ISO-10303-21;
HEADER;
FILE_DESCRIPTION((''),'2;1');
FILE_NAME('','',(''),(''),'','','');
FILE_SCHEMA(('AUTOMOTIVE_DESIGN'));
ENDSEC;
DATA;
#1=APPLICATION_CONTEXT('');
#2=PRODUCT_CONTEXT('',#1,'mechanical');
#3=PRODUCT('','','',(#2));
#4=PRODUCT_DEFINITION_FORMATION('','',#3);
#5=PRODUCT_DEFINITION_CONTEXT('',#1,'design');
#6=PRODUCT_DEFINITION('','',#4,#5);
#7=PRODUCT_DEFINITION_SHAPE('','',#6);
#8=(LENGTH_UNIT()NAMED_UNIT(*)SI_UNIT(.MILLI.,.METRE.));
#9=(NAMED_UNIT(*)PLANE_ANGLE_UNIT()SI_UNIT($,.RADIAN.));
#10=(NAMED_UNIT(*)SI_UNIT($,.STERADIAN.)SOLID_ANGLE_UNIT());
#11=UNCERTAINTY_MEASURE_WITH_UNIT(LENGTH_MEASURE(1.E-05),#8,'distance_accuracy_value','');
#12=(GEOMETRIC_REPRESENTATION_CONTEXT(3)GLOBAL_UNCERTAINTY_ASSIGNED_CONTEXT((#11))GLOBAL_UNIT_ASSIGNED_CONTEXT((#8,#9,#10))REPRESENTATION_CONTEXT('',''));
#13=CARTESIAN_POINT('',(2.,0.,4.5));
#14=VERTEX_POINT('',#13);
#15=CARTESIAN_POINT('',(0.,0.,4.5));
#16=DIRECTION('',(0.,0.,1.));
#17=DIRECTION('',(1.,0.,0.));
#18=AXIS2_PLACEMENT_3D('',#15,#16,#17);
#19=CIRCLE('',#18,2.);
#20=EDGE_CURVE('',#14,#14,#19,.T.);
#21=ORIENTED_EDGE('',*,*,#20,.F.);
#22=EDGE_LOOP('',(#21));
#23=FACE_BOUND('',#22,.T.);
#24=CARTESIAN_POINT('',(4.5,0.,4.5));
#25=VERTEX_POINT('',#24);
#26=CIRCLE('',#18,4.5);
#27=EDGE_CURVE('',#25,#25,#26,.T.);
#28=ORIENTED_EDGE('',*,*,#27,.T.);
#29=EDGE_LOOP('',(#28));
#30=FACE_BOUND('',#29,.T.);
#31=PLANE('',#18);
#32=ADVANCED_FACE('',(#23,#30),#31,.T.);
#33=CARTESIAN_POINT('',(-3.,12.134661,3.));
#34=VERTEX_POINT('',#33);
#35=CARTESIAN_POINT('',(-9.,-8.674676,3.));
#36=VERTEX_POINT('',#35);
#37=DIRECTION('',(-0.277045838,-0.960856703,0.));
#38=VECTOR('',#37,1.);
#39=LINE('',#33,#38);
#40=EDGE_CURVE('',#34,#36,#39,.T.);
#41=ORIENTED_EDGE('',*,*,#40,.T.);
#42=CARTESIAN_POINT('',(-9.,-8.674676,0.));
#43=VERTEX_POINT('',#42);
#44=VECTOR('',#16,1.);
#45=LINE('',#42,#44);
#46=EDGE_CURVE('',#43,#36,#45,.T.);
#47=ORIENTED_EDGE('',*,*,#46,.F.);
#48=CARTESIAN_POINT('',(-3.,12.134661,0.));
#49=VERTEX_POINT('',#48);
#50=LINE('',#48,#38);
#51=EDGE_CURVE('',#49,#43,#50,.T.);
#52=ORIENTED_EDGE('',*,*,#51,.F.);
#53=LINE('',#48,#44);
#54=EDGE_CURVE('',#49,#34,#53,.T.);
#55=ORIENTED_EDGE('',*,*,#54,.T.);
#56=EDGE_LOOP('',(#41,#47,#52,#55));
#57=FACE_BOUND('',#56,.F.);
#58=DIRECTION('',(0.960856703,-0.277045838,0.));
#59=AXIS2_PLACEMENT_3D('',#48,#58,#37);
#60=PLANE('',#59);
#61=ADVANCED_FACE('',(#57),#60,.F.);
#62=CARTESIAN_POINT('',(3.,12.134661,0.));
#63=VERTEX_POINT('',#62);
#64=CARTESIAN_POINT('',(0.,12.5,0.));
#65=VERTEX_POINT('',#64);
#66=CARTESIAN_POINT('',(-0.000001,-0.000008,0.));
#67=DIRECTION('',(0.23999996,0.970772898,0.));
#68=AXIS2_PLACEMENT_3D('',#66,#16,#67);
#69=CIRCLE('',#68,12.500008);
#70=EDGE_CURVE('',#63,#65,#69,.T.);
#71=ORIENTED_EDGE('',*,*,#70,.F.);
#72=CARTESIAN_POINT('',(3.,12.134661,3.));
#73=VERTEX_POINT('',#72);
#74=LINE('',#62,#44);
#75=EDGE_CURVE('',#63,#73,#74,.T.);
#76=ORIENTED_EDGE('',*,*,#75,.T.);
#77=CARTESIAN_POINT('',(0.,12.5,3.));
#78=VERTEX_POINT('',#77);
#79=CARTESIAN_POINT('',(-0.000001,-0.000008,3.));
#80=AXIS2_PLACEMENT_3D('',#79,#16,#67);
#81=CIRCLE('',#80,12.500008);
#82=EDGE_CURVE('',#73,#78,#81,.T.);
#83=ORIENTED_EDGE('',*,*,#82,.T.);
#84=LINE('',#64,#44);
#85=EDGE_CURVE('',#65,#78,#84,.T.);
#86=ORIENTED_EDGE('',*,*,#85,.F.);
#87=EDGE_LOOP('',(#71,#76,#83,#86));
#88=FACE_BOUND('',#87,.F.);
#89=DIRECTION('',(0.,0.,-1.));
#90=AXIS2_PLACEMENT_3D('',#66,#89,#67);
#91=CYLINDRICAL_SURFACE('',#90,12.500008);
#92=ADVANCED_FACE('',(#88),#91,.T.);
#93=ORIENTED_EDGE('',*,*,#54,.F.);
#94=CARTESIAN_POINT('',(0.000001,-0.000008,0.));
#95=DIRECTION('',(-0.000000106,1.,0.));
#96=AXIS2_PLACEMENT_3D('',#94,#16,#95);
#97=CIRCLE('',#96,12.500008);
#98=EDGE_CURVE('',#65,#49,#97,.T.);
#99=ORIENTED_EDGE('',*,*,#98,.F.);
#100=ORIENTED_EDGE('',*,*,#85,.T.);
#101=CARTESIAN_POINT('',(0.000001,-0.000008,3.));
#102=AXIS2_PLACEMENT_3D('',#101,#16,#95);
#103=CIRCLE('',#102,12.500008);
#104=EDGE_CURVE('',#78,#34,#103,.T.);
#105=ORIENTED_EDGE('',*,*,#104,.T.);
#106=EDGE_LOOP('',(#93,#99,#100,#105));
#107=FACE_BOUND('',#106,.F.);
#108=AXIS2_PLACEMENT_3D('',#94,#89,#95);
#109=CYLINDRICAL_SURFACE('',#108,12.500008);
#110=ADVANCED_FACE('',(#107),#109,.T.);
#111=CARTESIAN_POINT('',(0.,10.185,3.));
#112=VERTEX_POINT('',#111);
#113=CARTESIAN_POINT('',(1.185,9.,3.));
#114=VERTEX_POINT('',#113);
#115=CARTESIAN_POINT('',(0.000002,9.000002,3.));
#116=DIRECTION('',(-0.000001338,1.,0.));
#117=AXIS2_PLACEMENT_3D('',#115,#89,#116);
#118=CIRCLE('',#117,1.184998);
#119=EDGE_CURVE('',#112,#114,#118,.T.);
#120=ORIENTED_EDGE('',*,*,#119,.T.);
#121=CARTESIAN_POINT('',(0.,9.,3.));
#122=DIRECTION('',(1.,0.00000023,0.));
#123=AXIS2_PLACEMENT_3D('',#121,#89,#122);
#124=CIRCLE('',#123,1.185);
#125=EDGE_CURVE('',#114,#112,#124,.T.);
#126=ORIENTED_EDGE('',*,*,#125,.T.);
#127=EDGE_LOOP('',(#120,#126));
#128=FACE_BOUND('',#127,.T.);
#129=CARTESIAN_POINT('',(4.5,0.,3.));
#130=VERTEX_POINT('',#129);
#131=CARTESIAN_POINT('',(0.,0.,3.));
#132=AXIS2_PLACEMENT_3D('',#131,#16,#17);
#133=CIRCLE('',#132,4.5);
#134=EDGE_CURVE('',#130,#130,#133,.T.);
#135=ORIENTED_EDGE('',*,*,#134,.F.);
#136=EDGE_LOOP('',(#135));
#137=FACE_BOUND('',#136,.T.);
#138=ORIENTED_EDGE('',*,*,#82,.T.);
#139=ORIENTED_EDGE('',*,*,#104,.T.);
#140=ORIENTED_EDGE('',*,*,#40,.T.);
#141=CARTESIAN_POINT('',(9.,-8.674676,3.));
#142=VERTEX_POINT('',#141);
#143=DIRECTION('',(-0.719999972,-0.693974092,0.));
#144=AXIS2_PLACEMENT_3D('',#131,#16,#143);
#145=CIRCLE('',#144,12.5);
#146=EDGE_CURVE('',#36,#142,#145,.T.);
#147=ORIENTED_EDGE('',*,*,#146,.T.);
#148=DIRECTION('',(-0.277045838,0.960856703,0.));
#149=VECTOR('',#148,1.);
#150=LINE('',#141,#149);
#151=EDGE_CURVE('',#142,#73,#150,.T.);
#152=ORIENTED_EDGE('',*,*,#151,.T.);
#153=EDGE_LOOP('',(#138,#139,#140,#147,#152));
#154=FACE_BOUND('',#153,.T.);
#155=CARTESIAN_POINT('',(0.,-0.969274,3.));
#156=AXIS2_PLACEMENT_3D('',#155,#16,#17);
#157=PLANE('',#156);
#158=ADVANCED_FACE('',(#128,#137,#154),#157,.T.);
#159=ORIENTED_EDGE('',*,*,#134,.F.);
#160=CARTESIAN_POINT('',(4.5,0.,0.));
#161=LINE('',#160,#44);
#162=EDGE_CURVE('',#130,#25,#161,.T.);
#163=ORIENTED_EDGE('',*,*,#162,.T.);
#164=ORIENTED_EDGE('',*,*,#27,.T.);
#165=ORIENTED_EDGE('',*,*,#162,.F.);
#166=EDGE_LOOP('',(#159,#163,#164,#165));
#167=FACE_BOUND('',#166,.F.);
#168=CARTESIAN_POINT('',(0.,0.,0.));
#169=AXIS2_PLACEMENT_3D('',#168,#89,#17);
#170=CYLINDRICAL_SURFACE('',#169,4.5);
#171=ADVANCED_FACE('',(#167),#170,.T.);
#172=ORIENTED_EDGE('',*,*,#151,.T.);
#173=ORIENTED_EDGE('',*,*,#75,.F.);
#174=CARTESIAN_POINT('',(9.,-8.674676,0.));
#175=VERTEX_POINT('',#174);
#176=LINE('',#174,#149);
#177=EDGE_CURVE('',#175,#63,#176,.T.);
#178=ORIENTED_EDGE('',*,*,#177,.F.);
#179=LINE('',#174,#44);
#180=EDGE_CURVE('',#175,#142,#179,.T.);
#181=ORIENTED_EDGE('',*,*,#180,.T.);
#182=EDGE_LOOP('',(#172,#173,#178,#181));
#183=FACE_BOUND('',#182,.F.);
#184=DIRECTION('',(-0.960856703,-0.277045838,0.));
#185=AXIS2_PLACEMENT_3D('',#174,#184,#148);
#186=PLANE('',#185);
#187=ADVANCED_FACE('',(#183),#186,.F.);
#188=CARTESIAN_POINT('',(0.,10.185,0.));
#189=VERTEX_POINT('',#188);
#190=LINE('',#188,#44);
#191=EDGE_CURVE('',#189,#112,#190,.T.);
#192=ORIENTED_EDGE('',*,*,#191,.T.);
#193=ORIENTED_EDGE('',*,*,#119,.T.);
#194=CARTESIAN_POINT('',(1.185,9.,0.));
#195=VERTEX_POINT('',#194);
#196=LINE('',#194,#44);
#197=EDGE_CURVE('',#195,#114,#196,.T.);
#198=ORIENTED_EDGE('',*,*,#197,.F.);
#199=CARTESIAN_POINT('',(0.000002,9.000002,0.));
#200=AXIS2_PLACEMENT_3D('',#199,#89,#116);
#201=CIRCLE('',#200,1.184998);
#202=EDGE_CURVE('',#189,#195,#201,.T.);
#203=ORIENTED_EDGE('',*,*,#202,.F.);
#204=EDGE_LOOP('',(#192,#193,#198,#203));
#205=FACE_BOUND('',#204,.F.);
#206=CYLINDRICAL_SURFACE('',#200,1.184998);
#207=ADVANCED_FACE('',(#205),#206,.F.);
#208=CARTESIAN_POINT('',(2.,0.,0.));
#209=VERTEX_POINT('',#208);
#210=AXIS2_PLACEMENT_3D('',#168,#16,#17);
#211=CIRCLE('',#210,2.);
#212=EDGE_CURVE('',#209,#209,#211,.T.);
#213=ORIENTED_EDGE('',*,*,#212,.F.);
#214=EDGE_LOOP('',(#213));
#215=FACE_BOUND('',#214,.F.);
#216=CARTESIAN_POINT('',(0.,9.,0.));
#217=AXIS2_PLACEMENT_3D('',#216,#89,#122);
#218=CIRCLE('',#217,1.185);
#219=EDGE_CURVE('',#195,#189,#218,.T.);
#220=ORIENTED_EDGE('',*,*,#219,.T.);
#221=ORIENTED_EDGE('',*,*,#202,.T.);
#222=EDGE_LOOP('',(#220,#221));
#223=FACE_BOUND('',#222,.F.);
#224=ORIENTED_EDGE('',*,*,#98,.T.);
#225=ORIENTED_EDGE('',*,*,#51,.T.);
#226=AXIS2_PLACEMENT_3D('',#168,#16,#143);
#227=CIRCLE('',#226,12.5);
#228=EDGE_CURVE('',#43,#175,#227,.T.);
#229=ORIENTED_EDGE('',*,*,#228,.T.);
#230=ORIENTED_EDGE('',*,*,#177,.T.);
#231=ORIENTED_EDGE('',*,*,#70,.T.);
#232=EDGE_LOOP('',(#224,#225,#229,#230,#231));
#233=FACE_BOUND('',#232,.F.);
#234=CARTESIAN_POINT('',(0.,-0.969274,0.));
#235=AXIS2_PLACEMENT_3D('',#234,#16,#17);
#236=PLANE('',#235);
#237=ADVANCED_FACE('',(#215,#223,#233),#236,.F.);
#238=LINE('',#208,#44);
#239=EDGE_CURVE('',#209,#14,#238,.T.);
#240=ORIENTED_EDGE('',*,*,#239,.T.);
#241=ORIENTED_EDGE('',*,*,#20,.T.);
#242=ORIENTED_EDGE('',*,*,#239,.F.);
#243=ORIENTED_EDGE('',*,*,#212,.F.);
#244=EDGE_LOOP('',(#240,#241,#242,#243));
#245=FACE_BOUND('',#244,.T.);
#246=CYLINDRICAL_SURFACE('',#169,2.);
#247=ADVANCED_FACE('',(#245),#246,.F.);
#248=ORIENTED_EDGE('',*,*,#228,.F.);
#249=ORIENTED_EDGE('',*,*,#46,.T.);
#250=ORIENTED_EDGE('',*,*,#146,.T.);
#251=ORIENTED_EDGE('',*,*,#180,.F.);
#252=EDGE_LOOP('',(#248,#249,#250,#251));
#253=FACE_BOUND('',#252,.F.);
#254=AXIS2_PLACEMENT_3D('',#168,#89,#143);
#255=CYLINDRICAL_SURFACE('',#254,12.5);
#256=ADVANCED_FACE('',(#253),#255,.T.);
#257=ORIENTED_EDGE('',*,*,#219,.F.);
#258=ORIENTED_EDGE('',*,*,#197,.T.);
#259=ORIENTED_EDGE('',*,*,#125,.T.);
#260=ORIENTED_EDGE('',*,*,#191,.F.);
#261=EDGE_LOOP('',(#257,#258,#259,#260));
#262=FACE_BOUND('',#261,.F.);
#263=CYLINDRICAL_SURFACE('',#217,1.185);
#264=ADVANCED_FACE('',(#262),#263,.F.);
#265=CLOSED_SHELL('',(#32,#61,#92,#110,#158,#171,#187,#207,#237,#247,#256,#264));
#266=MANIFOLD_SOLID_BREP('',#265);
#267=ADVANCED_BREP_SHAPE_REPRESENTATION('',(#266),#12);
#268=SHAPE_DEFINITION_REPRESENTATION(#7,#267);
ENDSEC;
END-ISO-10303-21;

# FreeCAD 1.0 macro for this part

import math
import FreeCAD as App
import Part
import Sketcher
from FreeCAD import Vector
Q = App.Units.Quantity

doc = App.newDocument("Part")
params = doc.addObject("Spreadsheet::Sheet", "Params")
for row, (alias, value) in enumerate([
    ("sketch1_diameter", "9 mm"),
    ("sketch1_radius", "12.5 mm"),
    ("pad1_length", "3 mm"),
    ("sketch2_diameter", "9 mm"),
    ("sketch2_diameter2", "4 mm"),
    ("pad2_length", "4.5 mm"),
], start=1):
    params.set(f"A{row}", alias)
    params.set(f"B{row}", "=" + value)
    params.setAlias(f"B{row}", alias)

body = doc.addObject("PartDesign::Body", "Body")

sketch1 = doc.addObject("Sketcher::SketchObject", "Sketch")
body.addObject(sketch1)
sketch1.AttachmentSupport = (doc.XY_Plane, [""])
sketch1.MapMode = "FlatFace"
sketch1.addGeometry(Part.LineSegment(Vector(-3, 12.1, 0), Vector(-9, -8.7, 0)), False)
sketch1.addGeometry(Part.ArcOfCircle(Part.Circle(Vector(0, 0, 0), Vector(0, 0, 1), 12.5), math.radians(-136), math.radians(-44)), False)
sketch1.addGeometry(Part.LineSegment(Vector(9, -8.7, 0), Vector(3, 12.1, 0)), False)
sketch1.addGeometry(Part.ArcOfCircle(Part.Circle(Vector(0, 0, 0), Vector(0, 0, 1), 12.5), math.radians(76.11), math.radians(90)), False)
sketch1.addGeometry(Part.ArcOfCircle(Part.Circle(Vector(0, 0, 0), Vector(0, 0, 1), 12.5), math.radians(90), math.radians(103.89)), False)
sketch1.addGeometry(Part.Circle(Vector(0, 0, 0), Vector(0, 0, 1), 4.5), False)
sketch1.addGeometry(Part.ArcOfCircle(Part.Circle(Vector(0, 9, 0), Vector(0, 0, 1), 1.2), math.radians(0), math.radians(90)), False)
sketch1.addGeometry(Part.ArcOfCircle(Part.Circle(Vector(0, 9, 0), Vector(0, 0, 1), 1.2), math.radians(90), math.radians(360)), False)
sketch1.addConstraint(Sketcher.Constraint("Coincident", 0, 2, 1, 1))
sketch1.addConstraint(Sketcher.Constraint("Coincident", 1, 2, 2, 1))
sketch1.addConstraint(Sketcher.Constraint("Coincident", 2, 2, 3, 1))
sketch1.addConstraint(Sketcher.Constraint("Tangent", 3, 2, 4, 1))
sketch1.addConstraint(Sketcher.Constraint("Coincident", 4, 2, 0, 1))
sketch1.addConstraint(Sketcher.Constraint("Tangent", 6, 1, 7, 2))
sketch1.addConstraint(Sketcher.Constraint("Coincident", 7, 1, 6, 2))
sketch1.addConstraint(Sketcher.Constraint("Coincident", 1, 3, -1, 1))
sketch1.addConstraint(Sketcher.Constraint("Coincident", 3, 3, -1, 1))
sketch1.addConstraint(Sketcher.Constraint("Coincident", 5, 3, -1, 1))
sketch1.addConstraint(Sketcher.Constraint("Equal", 3, 4))
sketch1.addConstraint(Sketcher.Constraint("PointOnObject", 6, 3, -2))
sketch1.addConstraint(Sketcher.Constraint("PointOnObject", 3, 2, -2))
sketch1.addConstraint(Sketcher.Constraint("PointOnObject", 7, 1, -2))
sketch1.addConstraint(Sketcher.Constraint("Horizontal", 0, 2, 1, 2))
sketch1.addConstraint(Sketcher.Constraint("Horizontal", 2, 2, 4, 2))
sketch1.addConstraint(Sketcher.Constraint("Horizontal", 7, 3, 6, 1))
sketch1.addConstraint(Sketcher.Constraint("Diameter", 5, Q("9 mm")))
sketch1.addConstraint(Sketcher.Constraint("Radius", 1, Q("12.5 mm")))
sketch1.addConstraint(Sketcher.Constraint("DistanceY", -1, 1, 6, 3, Q("9.000002 mm")))
sketch1.addConstraint(Sketcher.Constraint("DistanceX", 0, 2, -1, 1, Q("9 mm")))
sketch1.addConstraint(Sketcher.Constraint("DistanceX", -1, 1, 2, 2, Q("3 mm")))
sketch1.addConstraint(Sketcher.Constraint("Radius", 6, Q("1.184998 mm")))
sketch1.addConstraint(Sketcher.Constraint("DistanceY", -1, 1, 3, 2, Q("12.5 mm")))
sketch1.setExpression("Constraints[17]", "Params.sketch1_diameter")
sketch1.setExpression("Constraints[18]", "Params.sketch1_radius")
pad1 = doc.addObject("PartDesign::Pad", "Pad")
body.addObject(pad1)
pad1.Profile = sketch1
pad1.setExpression("Length", "Params.pad1_length")

sketch2 = doc.addObject("Sketcher::SketchObject", "Sketch001")
body.addObject(sketch2)
sketch2.AttachmentSupport = (doc.XY_Plane, [""])
sketch2.MapMode = "FlatFace"
sketch2.addGeometry(Part.Circle(Vector(0, 0, 0), Vector(0, 0, 1), 4.5), False)
sketch2.addGeometry(Part.Circle(Vector(0, 0, 0), Vector(0, 0, 1), 2), False)
sketch2.addConstraint(Sketcher.Constraint("Coincident", 0, 3, -1, 1))
sketch2.addConstraint(Sketcher.Constraint("Coincident", 1, 3, -1, 1))
sketch2.addConstraint(Sketcher.Constraint("Diameter", 0, Q("9 mm")))
sketch2.addConstraint(Sketcher.Constraint("Diameter", 1, Q("4 mm")))
sketch2.setExpression("Constraints[2]", "Params.sketch2_diameter")
sketch2.setExpression("Constraints[3]", "Params.sketch2_diameter2")
pad2 = doc.addObject("PartDesign::Pad", "Pad001")
body.addObject(pad2)
pad2.Profile = sketch2
pad2.setExpression("Length", "Params.pad2_length")

doc.recompute()
